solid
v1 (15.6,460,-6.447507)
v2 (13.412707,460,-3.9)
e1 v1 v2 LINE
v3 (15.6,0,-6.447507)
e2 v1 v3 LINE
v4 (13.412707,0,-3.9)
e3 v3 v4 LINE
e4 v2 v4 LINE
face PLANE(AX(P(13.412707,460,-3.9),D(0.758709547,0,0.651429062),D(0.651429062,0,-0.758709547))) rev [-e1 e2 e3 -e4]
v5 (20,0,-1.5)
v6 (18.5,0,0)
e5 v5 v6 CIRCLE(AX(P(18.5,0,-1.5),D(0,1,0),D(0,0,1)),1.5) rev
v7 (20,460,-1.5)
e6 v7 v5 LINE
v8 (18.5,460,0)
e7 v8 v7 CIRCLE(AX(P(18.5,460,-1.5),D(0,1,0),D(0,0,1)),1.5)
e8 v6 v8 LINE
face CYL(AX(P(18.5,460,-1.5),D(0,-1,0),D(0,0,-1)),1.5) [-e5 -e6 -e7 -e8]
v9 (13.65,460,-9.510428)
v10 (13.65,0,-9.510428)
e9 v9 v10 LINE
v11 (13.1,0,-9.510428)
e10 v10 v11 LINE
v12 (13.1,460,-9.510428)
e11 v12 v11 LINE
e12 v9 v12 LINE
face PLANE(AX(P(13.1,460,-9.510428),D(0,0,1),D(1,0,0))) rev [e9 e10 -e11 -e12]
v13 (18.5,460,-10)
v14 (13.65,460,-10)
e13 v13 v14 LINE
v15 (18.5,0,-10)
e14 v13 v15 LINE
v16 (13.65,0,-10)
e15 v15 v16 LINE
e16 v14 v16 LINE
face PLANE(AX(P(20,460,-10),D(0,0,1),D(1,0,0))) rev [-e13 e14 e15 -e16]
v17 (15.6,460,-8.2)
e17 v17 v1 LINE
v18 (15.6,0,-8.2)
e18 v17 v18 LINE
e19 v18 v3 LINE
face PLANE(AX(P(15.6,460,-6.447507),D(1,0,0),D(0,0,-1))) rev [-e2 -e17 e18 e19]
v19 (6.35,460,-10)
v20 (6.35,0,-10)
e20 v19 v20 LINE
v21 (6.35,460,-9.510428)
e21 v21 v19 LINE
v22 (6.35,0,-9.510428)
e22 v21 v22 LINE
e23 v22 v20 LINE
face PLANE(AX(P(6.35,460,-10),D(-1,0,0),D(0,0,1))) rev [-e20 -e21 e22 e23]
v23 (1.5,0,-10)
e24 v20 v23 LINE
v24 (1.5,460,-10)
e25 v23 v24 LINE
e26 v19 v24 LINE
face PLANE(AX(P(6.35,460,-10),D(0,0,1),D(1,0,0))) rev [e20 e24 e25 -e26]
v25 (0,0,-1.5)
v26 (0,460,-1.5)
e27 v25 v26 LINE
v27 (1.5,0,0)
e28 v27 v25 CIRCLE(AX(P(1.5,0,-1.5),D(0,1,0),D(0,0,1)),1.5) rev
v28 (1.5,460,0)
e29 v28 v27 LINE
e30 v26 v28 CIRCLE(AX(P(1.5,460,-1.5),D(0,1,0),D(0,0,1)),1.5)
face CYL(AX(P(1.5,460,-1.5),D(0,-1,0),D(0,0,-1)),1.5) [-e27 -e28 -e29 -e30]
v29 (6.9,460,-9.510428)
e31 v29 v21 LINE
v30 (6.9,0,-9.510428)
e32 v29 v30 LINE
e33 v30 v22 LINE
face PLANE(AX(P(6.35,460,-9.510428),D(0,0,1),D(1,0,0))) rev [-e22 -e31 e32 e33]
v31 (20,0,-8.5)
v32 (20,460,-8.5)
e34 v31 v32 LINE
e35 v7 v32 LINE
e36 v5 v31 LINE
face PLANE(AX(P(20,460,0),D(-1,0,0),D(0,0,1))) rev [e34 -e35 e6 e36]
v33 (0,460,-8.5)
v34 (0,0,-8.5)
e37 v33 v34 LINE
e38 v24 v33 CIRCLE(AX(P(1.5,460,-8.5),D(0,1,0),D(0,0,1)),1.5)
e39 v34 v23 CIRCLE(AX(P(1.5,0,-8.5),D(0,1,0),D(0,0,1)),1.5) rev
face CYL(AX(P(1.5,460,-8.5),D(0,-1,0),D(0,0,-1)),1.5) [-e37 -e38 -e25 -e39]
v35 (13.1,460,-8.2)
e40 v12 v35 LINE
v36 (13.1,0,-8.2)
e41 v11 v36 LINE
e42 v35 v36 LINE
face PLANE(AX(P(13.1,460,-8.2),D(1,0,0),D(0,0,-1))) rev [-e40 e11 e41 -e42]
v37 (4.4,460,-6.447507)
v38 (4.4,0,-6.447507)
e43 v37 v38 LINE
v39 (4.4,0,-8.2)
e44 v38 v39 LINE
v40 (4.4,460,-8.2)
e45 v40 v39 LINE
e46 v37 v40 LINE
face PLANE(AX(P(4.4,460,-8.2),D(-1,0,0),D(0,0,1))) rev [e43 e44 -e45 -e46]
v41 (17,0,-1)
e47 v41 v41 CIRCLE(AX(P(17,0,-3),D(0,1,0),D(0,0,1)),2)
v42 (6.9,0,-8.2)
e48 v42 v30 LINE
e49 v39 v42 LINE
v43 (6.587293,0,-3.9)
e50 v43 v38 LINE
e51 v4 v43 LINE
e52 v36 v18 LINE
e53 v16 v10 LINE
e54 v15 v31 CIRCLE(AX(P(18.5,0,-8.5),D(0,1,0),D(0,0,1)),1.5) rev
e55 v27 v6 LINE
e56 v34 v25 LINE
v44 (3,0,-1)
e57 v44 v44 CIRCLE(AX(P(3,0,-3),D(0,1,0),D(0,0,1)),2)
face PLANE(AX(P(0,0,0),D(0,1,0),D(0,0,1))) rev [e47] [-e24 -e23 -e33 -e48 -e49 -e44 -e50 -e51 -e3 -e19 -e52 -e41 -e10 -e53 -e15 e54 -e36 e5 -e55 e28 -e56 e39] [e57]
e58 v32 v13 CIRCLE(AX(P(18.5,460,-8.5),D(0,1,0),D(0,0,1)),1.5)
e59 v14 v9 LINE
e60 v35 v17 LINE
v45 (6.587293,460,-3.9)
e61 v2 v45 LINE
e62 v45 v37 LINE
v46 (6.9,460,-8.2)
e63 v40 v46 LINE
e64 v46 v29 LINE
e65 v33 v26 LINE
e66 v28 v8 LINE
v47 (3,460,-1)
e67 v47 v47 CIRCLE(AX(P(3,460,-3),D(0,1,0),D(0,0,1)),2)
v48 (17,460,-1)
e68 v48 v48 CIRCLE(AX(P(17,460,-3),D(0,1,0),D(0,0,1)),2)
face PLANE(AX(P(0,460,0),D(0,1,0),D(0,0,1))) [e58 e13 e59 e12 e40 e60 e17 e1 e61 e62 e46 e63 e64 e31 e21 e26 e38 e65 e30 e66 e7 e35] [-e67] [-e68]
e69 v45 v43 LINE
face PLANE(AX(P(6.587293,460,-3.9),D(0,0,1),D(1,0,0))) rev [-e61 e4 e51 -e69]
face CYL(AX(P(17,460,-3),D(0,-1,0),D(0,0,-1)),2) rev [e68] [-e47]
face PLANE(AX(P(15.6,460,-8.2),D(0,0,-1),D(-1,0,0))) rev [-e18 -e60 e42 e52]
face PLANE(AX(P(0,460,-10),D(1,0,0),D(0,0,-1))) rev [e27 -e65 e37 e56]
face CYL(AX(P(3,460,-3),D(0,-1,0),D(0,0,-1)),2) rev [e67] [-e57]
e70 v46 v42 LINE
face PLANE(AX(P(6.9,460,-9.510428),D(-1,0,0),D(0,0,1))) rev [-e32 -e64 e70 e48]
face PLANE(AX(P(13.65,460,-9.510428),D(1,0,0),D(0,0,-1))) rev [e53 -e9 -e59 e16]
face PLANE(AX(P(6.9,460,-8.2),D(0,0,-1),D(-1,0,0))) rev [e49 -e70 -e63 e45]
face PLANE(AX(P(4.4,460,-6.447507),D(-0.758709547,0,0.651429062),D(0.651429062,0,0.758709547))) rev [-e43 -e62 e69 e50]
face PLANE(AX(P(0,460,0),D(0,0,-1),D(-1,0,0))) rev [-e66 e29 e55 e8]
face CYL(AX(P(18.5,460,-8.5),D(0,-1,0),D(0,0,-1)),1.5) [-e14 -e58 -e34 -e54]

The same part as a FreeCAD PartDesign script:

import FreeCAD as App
import Part
import Sketcher
Q = App.Units.Quantity


def edges_at(feature, points):
    """Names of the edges that pass closest to the given points."""
    edges = feature.Shape.Edges
    near = lambda p: min(range(len(edges)), key=lambda i: edges[i].distToShape(Part.Vertex(*p))[0])
    return sorted({f"Edge{near(p) + 1}" for p in points})


def add_polygon(sketch, points):
    """Adds a closed chain of lines whose ends are joined by coincident constraints."""
    first, n = sketch.GeometryCount, len(points)
    for a, b in zip(points, points[1:] + points[:1]):
        sketch.addGeometry(Part.LineSegment(App.Vector(*a, 0), App.Vector(*b, 0)), False)
    for i in range(n):
        sketch.addConstraint(Sketcher.Constraint("Coincident", first + i, 2, first + (i + 1) % n, 1))

doc = App.newDocument("Part")
body = doc.addObject("PartDesign::Body", "Body")

sketch1 = body.newObject("Sketcher::SketchObject", "Sketch")
sketch1.AttachmentSupport = (doc.getObject("XZ_Plane"), [""])
sketch1.MapMode = "FlatFace"
add_polygon(sketch1, [(0, 0), (20, 0), (20, -10), (13.65, -10), (13.65, -9.51), (13.1, -9.51), (13.1, -8.2), (15.6, -8.2), (15.6, -6.45), (13.41, -3.9), (6.59, -3.9), (4.4, -6.45), (4.4, -8.2), (6.9, -8.2), (6.9, -9.51), (6.35, -9.51), (6.35, -10), (0, -10)])
sketch1.addGeometry(Part.Circle(App.Vector(3, -3, 0), App.Vector(0, 0, 1), 2), False)
sketch1.addGeometry(Part.Circle(App.Vector(17, -3, 0), App.Vector(0, 0, 1), 2), False)
sketch1.addConstraint([
    Sketcher.Constraint("Horizontal", 0),
    Sketcher.Constraint("Vertical", 1),
    Sketcher.Constraint("Horizontal", 2),
    Sketcher.Constraint("Vertical", 3),
    Sketcher.Constraint("Horizontal", 4),
    Sketcher.Constraint("Vertical", 5),
    Sketcher.Constraint("Horizontal", 6),
    Sketcher.Constraint("Vertical", 7),
    Sketcher.Constraint("Horizontal", 9),
    Sketcher.Constraint("Vertical", 11),
    Sketcher.Constraint("Horizontal", 12),
    Sketcher.Constraint("Vertical", 13),
    Sketcher.Constraint("Horizontal", 14),
    Sketcher.Constraint("Vertical", 15),
    Sketcher.Constraint("Horizontal", 16),
    Sketcher.Constraint("Vertical", 17),
    Sketcher.Constraint("Coincident", 17, 2, -1, 1),
    Sketcher.Constraint("Equal", 18, 19),
    Sketcher.Constraint("Horizontal", 18, 3, 19, 3),
    Sketcher.Constraint("Horizontal", 7, 2, 10, 2),
    Sketcher.Constraint("Horizontal", 6, 2, 11, 2),
    Sketcher.Constraint("Horizontal", 4, 2, 13, 2),
    Sketcher.Constraint("Horizontal", 2, 2, 15, 2),
    Sketcher.Constraint("Equal", 6, 12),
    Sketcher.Constraint("Equal", 4, 14),
    Sketcher.Constraint("Equal", 2, 16),
    Sketcher.Constraint("Equal", 8, 10),
    Sketcher.Constraint("Diameter", 18, Q("4 mm")),
    Sketcher.Constraint("DistanceX", 0, 1, 0, 2, Q("20 mm")),
    Sketcher.Constraint("DistanceY", 1, 2, 1, 1, Q("10 mm")),
    Sketcher.Constraint("DistanceX", 6, 1, 6, 2, Q("2.5 mm")),
    Sketcher.Constraint("DistanceX", -1, 1, 18, 3, Q("3 mm")),
    Sketcher.Constraint("DistanceY", 18, 3, -1, 1, Q("3 mm")),
    Sketcher.Constraint("DistanceX", -1, 1, 19, 3, Q("17 mm")),
    Sketcher.Constraint("DistanceX", 2, 2, 2, 1, Q("6.35 mm")),
    Sketcher.Constraint("DistanceX", 4, 2, 4, 1, Q("0.55 mm")),
    Sketcher.Constraint("DistanceY", 5, 2, -1, 1, Q("8.2 mm")),
    Sketcher.Constraint("DistanceY", 8, 2, -1, 1, Q("3.9 mm")),
    Sketcher.Constraint("DistanceX", 9, 2, 9, 1, Q("6.825414 mm")),
    Sketcher.Constraint("DistanceY", 3, 1, 3, 2, Q("0.489572 mm")),
    Sketcher.Constraint("DistanceY", 7, 1, 7, 2, Q("1.752493 mm")),
])
pad1 = body.newObject("PartDesign::Pad", "Pad")
pad1.Profile = sketch1
pad1.Length = 460
pad1.Reversed = True
doc.recompute()

fillet = body.newObject("PartDesign::Fillet", "Fillet")
fillet.Base = (pad1, edges_at(pad1, [
    (0, 230, -10),
    (20, 230, -10),
    (20, 230, 0),
    (0, 230, 0),
]))
fillet.Radius = 1.5

doc.recompute()
